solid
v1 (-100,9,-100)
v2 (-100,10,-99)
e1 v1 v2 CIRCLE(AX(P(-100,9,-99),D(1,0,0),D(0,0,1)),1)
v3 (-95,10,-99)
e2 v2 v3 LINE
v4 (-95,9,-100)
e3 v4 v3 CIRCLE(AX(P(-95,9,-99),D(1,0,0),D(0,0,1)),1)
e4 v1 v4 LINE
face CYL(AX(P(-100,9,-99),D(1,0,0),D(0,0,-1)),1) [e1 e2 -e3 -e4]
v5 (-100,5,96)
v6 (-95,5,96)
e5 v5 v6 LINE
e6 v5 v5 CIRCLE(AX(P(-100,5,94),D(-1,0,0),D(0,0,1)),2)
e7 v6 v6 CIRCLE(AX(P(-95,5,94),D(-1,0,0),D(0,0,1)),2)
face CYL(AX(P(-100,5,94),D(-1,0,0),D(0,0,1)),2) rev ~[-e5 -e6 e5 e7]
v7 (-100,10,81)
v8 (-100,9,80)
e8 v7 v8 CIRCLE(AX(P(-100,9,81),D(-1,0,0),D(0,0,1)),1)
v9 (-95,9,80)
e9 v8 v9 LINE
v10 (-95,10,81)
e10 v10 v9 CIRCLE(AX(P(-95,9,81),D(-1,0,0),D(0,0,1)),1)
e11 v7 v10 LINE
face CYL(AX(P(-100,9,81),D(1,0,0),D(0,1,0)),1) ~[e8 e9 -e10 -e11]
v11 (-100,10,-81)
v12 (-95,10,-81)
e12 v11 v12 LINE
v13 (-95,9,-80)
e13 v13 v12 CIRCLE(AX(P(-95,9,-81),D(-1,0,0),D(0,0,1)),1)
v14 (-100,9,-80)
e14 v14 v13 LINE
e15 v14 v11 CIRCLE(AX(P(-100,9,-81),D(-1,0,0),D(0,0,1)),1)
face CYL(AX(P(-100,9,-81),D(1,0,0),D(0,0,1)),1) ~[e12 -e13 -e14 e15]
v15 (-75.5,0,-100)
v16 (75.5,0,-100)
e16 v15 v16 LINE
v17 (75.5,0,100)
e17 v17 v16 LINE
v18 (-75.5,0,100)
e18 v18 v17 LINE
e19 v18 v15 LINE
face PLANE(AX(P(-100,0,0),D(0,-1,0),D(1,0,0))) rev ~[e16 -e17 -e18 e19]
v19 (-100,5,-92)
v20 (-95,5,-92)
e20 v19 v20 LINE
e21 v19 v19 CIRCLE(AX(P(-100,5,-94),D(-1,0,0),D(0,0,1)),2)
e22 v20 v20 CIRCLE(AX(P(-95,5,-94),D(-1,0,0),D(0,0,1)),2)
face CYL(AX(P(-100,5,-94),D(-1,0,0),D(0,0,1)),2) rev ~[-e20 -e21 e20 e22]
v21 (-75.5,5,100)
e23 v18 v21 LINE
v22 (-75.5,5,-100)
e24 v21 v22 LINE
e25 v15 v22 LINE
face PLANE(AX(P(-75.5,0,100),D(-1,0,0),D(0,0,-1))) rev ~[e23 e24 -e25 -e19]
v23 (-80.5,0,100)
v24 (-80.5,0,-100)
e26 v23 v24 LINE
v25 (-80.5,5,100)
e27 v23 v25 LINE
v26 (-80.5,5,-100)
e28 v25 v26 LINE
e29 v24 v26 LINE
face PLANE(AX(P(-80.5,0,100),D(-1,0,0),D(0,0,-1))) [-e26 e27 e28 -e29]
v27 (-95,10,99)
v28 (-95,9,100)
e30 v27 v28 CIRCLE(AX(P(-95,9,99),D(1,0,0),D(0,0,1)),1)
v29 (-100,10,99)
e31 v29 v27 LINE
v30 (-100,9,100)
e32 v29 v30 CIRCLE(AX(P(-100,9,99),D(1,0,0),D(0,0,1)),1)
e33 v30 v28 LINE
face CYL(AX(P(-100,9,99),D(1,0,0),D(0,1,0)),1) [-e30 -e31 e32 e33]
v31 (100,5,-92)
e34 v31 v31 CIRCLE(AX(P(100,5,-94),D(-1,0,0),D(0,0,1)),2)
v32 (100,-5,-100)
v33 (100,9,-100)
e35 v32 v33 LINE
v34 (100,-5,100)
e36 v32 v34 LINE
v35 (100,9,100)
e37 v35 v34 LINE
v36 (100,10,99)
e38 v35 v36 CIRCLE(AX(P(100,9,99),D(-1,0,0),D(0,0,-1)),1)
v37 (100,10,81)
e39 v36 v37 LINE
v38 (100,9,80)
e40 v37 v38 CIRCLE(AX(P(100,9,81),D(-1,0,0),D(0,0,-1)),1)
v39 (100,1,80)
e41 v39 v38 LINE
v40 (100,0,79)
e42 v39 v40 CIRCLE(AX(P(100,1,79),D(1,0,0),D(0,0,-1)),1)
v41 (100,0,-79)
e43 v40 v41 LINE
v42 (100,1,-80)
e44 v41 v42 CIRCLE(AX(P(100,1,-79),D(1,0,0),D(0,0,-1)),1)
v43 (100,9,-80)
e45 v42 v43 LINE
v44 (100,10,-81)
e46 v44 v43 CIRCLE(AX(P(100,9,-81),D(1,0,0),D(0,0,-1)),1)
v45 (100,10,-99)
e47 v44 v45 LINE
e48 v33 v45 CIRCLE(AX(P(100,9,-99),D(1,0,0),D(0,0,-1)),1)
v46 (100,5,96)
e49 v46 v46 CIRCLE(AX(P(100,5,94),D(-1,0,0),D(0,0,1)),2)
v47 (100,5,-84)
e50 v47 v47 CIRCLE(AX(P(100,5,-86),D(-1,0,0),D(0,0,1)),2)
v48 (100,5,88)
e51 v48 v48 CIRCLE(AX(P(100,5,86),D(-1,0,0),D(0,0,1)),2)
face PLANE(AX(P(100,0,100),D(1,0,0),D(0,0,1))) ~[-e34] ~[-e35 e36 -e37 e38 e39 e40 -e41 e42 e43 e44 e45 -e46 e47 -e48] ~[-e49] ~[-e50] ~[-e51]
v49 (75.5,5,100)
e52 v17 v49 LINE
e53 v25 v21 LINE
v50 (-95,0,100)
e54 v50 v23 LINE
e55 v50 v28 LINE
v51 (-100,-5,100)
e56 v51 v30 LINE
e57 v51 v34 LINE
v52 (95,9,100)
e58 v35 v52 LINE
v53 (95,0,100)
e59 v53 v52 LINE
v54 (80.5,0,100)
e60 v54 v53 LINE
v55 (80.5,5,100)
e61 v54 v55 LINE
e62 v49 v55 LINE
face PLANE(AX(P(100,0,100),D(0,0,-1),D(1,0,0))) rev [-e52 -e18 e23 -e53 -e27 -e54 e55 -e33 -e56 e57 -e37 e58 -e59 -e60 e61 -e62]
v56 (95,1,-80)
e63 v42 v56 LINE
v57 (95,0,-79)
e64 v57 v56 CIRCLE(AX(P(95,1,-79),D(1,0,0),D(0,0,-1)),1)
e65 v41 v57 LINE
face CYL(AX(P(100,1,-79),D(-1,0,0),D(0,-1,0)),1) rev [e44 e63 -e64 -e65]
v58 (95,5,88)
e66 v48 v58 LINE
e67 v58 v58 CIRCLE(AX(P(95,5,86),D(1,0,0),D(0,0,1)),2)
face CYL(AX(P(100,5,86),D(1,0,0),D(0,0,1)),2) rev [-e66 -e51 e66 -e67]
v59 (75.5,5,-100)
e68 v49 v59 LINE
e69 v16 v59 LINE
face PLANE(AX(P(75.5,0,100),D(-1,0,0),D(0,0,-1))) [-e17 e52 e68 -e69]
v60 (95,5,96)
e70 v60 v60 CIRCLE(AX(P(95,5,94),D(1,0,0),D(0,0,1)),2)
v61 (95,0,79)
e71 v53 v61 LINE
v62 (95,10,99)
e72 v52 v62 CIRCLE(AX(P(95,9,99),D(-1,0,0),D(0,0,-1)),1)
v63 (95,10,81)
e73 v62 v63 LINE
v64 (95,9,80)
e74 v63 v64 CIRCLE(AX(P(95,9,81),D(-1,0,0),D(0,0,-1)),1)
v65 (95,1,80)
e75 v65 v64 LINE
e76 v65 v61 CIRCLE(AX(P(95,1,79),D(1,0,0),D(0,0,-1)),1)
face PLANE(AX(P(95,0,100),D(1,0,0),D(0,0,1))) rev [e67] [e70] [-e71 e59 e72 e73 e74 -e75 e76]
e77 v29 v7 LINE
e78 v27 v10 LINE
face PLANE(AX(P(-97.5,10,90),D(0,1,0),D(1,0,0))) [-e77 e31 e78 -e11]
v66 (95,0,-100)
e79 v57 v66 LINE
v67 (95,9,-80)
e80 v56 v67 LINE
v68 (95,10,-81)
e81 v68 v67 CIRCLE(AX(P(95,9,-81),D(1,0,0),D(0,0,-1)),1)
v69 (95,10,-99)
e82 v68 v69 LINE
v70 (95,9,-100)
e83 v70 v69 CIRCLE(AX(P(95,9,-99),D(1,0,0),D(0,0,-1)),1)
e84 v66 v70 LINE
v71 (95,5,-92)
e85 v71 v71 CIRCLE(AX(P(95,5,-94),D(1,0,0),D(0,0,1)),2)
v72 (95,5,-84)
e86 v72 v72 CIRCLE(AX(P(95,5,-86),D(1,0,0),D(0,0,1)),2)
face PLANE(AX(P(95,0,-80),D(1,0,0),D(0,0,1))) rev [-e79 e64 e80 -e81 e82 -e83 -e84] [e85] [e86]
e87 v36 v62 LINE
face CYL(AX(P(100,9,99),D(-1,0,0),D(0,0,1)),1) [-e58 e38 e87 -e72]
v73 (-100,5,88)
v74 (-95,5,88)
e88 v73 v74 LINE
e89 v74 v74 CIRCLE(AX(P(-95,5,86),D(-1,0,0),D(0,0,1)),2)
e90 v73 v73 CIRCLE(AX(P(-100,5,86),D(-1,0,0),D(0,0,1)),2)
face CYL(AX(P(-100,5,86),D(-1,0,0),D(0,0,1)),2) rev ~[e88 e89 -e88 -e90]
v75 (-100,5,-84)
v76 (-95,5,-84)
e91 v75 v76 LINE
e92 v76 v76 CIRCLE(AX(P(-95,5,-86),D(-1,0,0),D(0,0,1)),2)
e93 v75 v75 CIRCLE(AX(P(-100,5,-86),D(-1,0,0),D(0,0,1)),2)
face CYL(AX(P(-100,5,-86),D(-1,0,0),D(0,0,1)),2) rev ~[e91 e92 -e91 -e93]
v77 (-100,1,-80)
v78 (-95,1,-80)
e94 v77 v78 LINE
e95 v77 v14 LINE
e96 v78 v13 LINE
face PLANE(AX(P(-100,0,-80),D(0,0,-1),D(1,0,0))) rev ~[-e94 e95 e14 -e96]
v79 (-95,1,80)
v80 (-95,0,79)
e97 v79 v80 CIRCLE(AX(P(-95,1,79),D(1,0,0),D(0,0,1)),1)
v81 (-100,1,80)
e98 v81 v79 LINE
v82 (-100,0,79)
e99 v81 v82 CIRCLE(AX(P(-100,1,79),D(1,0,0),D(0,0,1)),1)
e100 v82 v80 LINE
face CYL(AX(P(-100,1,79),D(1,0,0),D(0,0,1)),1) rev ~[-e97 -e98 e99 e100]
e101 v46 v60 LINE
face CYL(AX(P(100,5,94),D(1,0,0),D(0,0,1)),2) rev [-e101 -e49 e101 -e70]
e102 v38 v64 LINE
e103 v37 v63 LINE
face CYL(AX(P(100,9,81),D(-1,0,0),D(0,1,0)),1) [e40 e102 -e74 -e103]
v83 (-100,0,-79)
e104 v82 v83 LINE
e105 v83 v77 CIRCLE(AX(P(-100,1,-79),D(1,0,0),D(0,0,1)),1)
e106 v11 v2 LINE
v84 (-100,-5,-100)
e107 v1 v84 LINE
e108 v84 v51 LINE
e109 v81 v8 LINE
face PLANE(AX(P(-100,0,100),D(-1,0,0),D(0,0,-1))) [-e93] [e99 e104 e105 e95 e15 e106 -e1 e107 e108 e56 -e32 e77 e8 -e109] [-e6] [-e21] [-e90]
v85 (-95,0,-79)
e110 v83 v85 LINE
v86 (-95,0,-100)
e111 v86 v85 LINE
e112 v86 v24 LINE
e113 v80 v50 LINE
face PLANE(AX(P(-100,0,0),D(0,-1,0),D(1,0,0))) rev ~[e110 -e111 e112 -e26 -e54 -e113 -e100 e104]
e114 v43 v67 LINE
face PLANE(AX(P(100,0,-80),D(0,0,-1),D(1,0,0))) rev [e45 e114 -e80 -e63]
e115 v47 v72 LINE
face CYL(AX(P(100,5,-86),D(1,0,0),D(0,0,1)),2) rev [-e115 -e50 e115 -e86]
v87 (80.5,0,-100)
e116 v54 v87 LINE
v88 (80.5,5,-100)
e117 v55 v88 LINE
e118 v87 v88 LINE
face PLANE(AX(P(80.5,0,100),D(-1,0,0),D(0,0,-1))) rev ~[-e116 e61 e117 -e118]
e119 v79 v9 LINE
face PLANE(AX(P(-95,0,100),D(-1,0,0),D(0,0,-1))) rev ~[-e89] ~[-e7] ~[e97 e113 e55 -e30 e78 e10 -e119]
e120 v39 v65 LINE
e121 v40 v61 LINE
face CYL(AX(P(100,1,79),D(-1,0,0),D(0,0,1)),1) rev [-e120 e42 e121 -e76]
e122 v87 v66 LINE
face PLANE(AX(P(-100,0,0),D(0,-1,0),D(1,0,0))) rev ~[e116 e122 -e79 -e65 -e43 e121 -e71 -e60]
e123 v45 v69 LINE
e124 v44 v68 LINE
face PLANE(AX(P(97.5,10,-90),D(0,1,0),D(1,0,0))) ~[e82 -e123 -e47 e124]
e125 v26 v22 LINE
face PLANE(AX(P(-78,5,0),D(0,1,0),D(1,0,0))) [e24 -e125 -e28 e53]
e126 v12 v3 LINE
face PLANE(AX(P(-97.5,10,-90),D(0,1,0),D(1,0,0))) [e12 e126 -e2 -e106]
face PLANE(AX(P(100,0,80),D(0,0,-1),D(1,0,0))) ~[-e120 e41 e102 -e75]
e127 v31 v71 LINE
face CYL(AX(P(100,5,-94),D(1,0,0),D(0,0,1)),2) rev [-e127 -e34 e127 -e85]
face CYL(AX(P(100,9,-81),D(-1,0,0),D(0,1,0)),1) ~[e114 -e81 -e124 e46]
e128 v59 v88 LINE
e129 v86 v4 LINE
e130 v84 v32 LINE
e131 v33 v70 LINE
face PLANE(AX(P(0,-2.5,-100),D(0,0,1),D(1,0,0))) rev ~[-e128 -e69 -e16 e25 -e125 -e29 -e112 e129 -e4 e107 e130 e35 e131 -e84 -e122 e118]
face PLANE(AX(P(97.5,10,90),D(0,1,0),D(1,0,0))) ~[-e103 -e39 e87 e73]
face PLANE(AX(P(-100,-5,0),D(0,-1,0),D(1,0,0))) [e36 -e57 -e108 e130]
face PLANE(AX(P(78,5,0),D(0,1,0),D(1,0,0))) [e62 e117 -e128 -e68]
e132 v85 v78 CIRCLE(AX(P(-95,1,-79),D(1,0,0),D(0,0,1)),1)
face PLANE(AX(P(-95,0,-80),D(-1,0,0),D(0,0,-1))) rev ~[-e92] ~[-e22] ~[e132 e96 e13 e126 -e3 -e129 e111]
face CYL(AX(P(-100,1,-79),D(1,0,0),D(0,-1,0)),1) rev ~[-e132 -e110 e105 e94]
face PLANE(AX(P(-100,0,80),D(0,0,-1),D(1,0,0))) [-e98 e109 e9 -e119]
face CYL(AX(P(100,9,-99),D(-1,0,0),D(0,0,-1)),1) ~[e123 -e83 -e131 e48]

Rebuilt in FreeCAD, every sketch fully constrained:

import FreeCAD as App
import Part
import Sketcher


def edges_at(feature, points):
    """Names of the edges that pass closest to the given points."""
    edges = feature.Shape.Edges
    near = lambda p: min(range(len(edges)), key=lambda i: edges[i].distToShape(Part.Vertex(*p))[0])
    return sorted({f"Edge{near(p) + 1}" for p in points})

doc = App.newDocument("Part")
body = doc.addObject("PartDesign::Body", "Body")

sketch1 = body.newObject("Sketcher::SketchObject", "Sketch")
sketch1.AttachmentSupport = (doc.getObject("XY_Plane"), [""])
sketch1.MapMode = "FlatFace"
sketch1.addGeometry([
    Part.LineSegment(App.Vector(-100, 0, 0), App.Vector(-100, -5, 0)),
    Part.LineSegment(App.Vector(-100, -5, 0), App.Vector(100, -5, 0)),
    Part.LineSegment(App.Vector(100, -5, 0), App.Vector(100, 0, 0)),
    Part.LineSegment(App.Vector(100, 0, 0), App.Vector(-100, 0, 0)),
], False)
sketch1.addConstraint([
    Sketcher.Constraint("Coincident", 0, 2, 1, 1),
    Sketcher.Constraint("Coincident", 1, 2, 2, 1),
    Sketcher.Constraint("Coincident", 2, 2, 3, 1),
    Sketcher.Constraint("Coincident", 3, 2, 0, 1),
    Sketcher.Constraint("Vertical", 0),
    Sketcher.Constraint("Horizontal", 1),
    Sketcher.Constraint("Vertical", 2),
    Sketcher.Constraint("Horizontal", 3),
    Sketcher.Constraint("Symmetric", 2, 2, 3, 2, -1, 1),
    Sketcher.Constraint("DistanceX", 1, 1, 1, 2, 200.0),
    Sketcher.Constraint("DistanceY", 0, 2, 0, 1, 5.0),
])
pad1 = body.newObject("PartDesign::Pad", "Pad")
pad1.Profile = sketch1
pad1.Length = 200
pad1.Midplane = True

sketch2 = body.newObject("Sketcher::SketchObject", "Sketch001")
sketch2.AttachmentSupport = (doc.getObject("XZ_Plane"), [""])
sketch2.MapMode = "FlatFace"
sketch2.addGeometry([
    Part.LineSegment(App.Vector(-80.5, -100, 0), App.Vector(-80.5, 100, 0)),
    Part.LineSegment(App.Vector(-80.5, 100, 0), App.Vector(-75.5, 100, 0)),
    Part.LineSegment(App.Vector(-75.5, 100, 0), App.Vector(-75.5, -100, 0)),
    Part.LineSegment(App.Vector(-75.5, -100, 0), App.Vector(-80.5, -100, 0)),
    Part.LineSegment(App.Vector(75.5, -100, 0), App.Vector(75.5, 100, 0)),
    Part.LineSegment(App.Vector(75.5, 100, 0), App.Vector(80.5, 100, 0)),
    Part.LineSegment(App.Vector(80.5, 100, 0), App.Vector(80.5, -100, 0)),
    Part.LineSegment(App.Vector(80.5, -100, 0), App.Vector(75.5, -100, 0)),
], False)
sketch2.addConstraint([
    Sketcher.Constraint("Coincident", 0, 2, 1, 1),
    Sketcher.Constraint("Coincident", 1, 2, 2, 1),
    Sketcher.Constraint("Coincident", 2, 2, 3, 1),
    Sketcher.Constraint("Coincident", 3, 2, 0, 1),
    Sketcher.Constraint("Coincident", 4, 2, 5, 1),
    Sketcher.Constraint("Coincident", 5, 2, 6, 1),
    Sketcher.Constraint("Coincident", 6, 2, 7, 1),
    Sketcher.Constraint("Coincident", 7, 2, 4, 1),
    Sketcher.Constraint("Vertical", 0),
    Sketcher.Constraint("Horizontal", 1),
    Sketcher.Constraint("Vertical", 2),
    Sketcher.Constraint("Horizontal", 3),
    Sketcher.Constraint("Vertical", 4),
    Sketcher.Constraint("Horizontal", 5),
    Sketcher.Constraint("Vertical", 6),
    Sketcher.Constraint("Horizontal", 7),
    Sketcher.Constraint("Symmetric", 2, 2, 4, 2, -1, 1),
    Sketcher.Constraint("Symmetric", 0, 2, 6, 2, -1, 1),
    Sketcher.Constraint("Horizontal", 1, 2, 4, 2),
    Sketcher.Constraint("DistanceX", 1, 1, 1, 2, 5.0),
    Sketcher.Constraint("DistanceY", 0, 1, 0, 2, 200.0),
    Sketcher.Constraint("DistanceX", 1, 2, 4, 2, 151.0),
])
pad2 = body.newObject("PartDesign::Pad", "Pad001")
pad2.Profile = sketch2
pad2.Length = 5
pad2.Reversed = True

sketch3 = body.newObject("Sketcher::SketchObject", "Sketch002")
sketch3.AttachmentSupport = (doc.getObject("XZ_Plane"), [""])
sketch3.MapMode = "FlatFace"
sketch3.addGeometry([
    Part.LineSegment(App.Vector(-100, 80, 0), App.Vector(-100, 100, 0)),
    Part.LineSegment(App.Vector(-100, 100, 0), App.Vector(-95, 100, 0)),
    Part.LineSegment(App.Vector(-95, 100, 0), App.Vector(-95, 80, 0)),
    Part.LineSegment(App.Vector(-95, 80, 0), App.Vector(-100, 80, 0)),
    Part.LineSegment(App.Vector(-100, -100, 0), App.Vector(-100, -80, 0)),
    Part.LineSegment(App.Vector(-100, -80, 0), App.Vector(-95, -80, 0)),
    Part.LineSegment(App.Vector(-95, -80, 0), App.Vector(-95, -100, 0)),
    Part.LineSegment(App.Vector(-95, -100, 0), App.Vector(-100, -100, 0)),
], False)
sketch3.addConstraint([
    Sketcher.Constraint("Coincident", 0, 2, 1, 1),
    Sketcher.Constraint("Coincident", 1, 2, 2, 1),
    Sketcher.Constraint("Coincident", 2, 2, 3, 1),
    Sketcher.Constraint("Coincident", 3, 2, 0, 1),
    Sketcher.Constraint("Coincident", 4, 2, 5, 1),
    Sketcher.Constraint("Coincident", 5, 2, 6, 1),
    Sketcher.Constraint("Coincident", 6, 2, 7, 1),
    Sketcher.Constraint("Coincident", 7, 2, 4, 1),
    Sketcher.Constraint("Vertical", 0),
    Sketcher.Constraint("Horizontal", 1),
    Sketcher.Constraint("Vertical", 2),
    Sketcher.Constraint("Horizontal", 3),
    Sketcher.Constraint("Vertical", 4),
    Sketcher.Constraint("Horizontal", 5),
    Sketcher.Constraint("Vertical", 6),
    Sketcher.Constraint("Horizontal", 7),
    Sketcher.Constraint("Symmetric", 3, 2, 4, 2, -1),
    Sketcher.Constraint("Symmetric", 1, 2, 6, 2, -1),
    Sketcher.Constraint("DistanceX", 1, 1, 1, 2, 5.0),
    Sketcher.Constraint("DistanceY", 0, 1, 0, 2, 20.0),
    Sketcher.Constraint("DistanceX", 0, 2, -1, 1, 100.0),
    Sketcher.Constraint("DistanceY", -1, 1, 0, 2, 100.0),
])
pad3 = body.newObject("PartDesign::Pad", "Pad002")
pad3.Profile = sketch3
pad3.Length = 10
pad3.Reversed = True

sketch4 = body.newObject("Sketcher::SketchObject", "Sketch003")
sketch4.AttachmentSupport = (doc.getObject("YZ_Plane"), [""])
sketch4.MapMode = "FlatFace"
sketch4.AttachmentOffset = App.Placement(App.Vector(0, 0, -100), App.Rotation())
sketch4.addGeometry([
    Part.Circle(App.Vector(5, -86, 0), App.Vector(0, 0, 1), 2),
    Part.Circle(App.Vector(5, -94, 0), App.Vector(0, 0, 1), 2),
    Part.Circle(App.Vector(5, 94, 0), App.Vector(0, 0, 1), 2),
    Part.Circle(App.Vector(5, 86, 0), App.Vector(0, 0, 1), 2),
], False)
sketch4.addConstraint([
    Sketcher.Constraint("Equal", 0, 1),
    Sketcher.Constraint("Equal", 1, 2),
    Sketcher.Constraint("Equal", 2, 3),
    Sketcher.Constraint("Symmetric", 1, 3, 2, 3, -1),
    Sketcher.Constraint("Symmetric", 0, 3, 3, 3, -1),
    Sketcher.Constraint("Vertical", 0, 3, 1, 3),
    Sketcher.Constraint("Diameter", 0, 4.0),
    Sketcher.Constraint("DistanceX", -1, 1, 0, 3, 5.0),
    Sketcher.Constraint("DistanceY", 0, 3, -1, 1, 86.0),
    Sketcher.Constraint("DistanceY", 1, 3, -1, 1, 94.0),
])
pocket1 = body.newObject("PartDesign::Pocket", "Pocket")
pocket1.Profile = sketch4
pocket1.Length = 10
pocket1.Reversed = True
doc.recompute()

fillet = body.newObject("PartDesign::Fillet", "Fillet")
fillet.Base = (pocket1, edges_at(pocket1, [
    (-97.5, 0, 80),
    (-97.5, 10, 100),
    (-97.5, 10, 80),
    (-97.5, 0, -80),
    (-97.5, 10, -100),
    (-97.5, 10, -80),
]))
fillet.Radius = 1
doc.recompute()

mirrored = body.newObject("PartDesign::Mirrored", "Mirrored")
mirrored.Originals = [pad3, pocket1]
mirrored.MirrorPlane = (doc.getObject("YZ_Plane"), [""])
body.Tip = mirrored
doc.recompute()

fillet2 = body.newObject("PartDesign::Fillet", "Fillet001")
fillet2.Base = (mirrored, edges_at(mirrored, [
    (97.5, 0, 80),
    (97.5, 10, 100),
    (97.5, 10, 80),
    (97.5, 0, -80),
    (97.5, 10, -100),
    (97.5, 10, -80),
]))
fillet2.Radius = 1

doc.recompute()
